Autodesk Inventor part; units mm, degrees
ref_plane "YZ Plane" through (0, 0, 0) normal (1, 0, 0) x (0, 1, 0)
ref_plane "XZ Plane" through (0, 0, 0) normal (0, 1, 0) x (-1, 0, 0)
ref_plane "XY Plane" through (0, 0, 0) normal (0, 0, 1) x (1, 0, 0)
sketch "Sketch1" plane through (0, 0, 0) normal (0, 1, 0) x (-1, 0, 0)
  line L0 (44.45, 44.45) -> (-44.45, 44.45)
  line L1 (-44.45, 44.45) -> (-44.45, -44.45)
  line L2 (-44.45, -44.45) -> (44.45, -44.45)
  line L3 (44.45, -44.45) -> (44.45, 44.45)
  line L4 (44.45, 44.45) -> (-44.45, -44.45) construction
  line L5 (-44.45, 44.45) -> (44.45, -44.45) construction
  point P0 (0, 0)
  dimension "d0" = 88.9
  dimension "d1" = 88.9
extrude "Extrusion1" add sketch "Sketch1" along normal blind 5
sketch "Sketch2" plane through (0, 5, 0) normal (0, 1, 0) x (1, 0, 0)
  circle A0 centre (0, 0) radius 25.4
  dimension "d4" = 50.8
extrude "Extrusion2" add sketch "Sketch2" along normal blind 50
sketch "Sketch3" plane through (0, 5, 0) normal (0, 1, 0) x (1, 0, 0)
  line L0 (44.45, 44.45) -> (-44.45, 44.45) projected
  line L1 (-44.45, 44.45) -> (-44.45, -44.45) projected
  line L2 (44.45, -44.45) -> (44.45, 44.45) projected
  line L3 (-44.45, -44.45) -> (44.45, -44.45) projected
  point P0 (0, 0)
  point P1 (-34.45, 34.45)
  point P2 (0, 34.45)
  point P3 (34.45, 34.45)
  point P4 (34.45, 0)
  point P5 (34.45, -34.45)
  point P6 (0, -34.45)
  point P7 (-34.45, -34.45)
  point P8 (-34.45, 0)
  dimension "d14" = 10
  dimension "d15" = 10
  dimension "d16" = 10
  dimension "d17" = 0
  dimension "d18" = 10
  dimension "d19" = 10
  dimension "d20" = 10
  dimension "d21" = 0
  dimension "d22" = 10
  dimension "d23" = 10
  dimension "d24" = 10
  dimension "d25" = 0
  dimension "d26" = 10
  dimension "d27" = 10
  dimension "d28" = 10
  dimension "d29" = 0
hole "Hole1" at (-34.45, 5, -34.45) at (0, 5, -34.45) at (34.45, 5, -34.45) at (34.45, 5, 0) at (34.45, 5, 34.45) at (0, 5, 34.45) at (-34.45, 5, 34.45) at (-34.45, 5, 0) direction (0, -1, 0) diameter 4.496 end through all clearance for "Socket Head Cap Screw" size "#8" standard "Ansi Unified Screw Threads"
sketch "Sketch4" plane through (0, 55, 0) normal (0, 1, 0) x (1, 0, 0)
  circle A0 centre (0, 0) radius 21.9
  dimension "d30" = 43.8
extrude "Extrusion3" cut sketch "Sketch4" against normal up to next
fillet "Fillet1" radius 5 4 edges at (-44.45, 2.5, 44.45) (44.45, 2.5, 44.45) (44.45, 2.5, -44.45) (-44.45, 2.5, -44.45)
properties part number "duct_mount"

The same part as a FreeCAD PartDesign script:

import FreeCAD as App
import Part
import Sketcher
from FreeCAD import Vector
Q = App.Units.Quantity


def edges_at(feature, points):
    """Names of the edges that pass closest to the given points."""
    edges = feature.Shape.Edges
    near = lambda p: min(range(len(edges)), key=lambda i: edges[i].distToShape(Part.Vertex(*p))[0])
    return sorted({f"Edge{near(p) + 1}" for p in points})

doc = App.newDocument("Part")
body = doc.addObject("PartDesign::Body", "Body")

# Sketch on XZ plane
sketch1 = doc.addObject("Sketcher::SketchObject", "Sketch")
body.addObject(sketch1)
sketch1.AttachmentSupport = (doc.XZ_Plane, [""])
sketch1.MapMode = "FlatFace"
sketch1.addGeometry(Part.LineSegment(Vector(-44, -44, 0), Vector(-44, 44, 0)), False)
sketch1.addGeometry(Part.LineSegment(Vector(-44, 44, 0), Vector(44, 44, 0)), False)
sketch1.addGeometry(Part.LineSegment(Vector(44, 44, 0), Vector(44, -44, 0)), False)
sketch1.addGeometry(Part.LineSegment(Vector(44, -44, 0), Vector(-44, -44, 0)), False)
sketch1.addConstraint(Sketcher.Constraint("Coincident", 0, 2, 1, 1))
sketch1.addConstraint(Sketcher.Constraint("Coincident", 1, 2, 2, 1))
sketch1.addConstraint(Sketcher.Constraint("Coincident", 2, 2, 3, 1))
sketch1.addConstraint(Sketcher.Constraint("Coincident", 3, 2, 0, 1))
sketch1.addConstraint(Sketcher.Constraint("Vertical", 0))
sketch1.addConstraint(Sketcher.Constraint("Horizontal", 1))
sketch1.addConstraint(Sketcher.Constraint("Vertical", 2))
sketch1.addConstraint(Sketcher.Constraint("Horizontal", 3))
sketch1.addConstraint(Sketcher.Constraint("Symmetric", 0, 2, 2, 2, -1, 1))
sketch1.addConstraint(Sketcher.Constraint("Equal", 3, 0))
sketch1.addConstraint(Sketcher.Constraint("DistanceX", 1, 1, 1, 2, Q("3.5 in")))
pad1 = doc.addObject("PartDesign::Pad", "Pad")
body.addObject(pad1)
pad1.Profile = sketch1
pad1.Length = 5
pad1.Reversed = True

# Sketch on XZ plane
sketch2 = doc.addObject("Sketcher::SketchObject", "Sketch001")
body.addObject(sketch2)
sketch2.AttachmentSupport = (doc.XZ_Plane, [""])
sketch2.MapMode = "FlatFace"
sketch2.AttachmentOffset = App.Placement(Vector(0, 0, -5), App.Rotation())
sketch2.addGeometry(Part.Circle(Vector(0, 0, 0), Vector(0, 0, 1), 25), False)
sketch2.addConstraint(Sketcher.Constraint("Coincident", 0, 3, -1, 1))
sketch2.addConstraint(Sketcher.Constraint("Diameter", 0, Q("2 in")))
pad2 = doc.addObject("PartDesign::Pad", "Pad001")
body.addObject(pad2)
pad2.Profile = sketch2
pad2.Length = Q("1.9685039 in")
pad2.Reversed = True

# Sketch on XZ plane
sketch3 = doc.addObject("Sketcher::SketchObject", "Sketch002")
body.addObject(sketch3)
sketch3.AttachmentSupport = (doc.XZ_Plane, [""])
sketch3.MapMode = "FlatFace"
sketch3.AttachmentOffset = App.Placement(Vector(0, 0, -5), App.Rotation())
sketch3.addGeometry(Part.Circle(Vector(-34.5, -34.5, 0), Vector(0, 0, 1), 2.2), False)
sketch3.addGeometry(Part.Circle(Vector(0, -34.5, 0), Vector(0, 0, 1), 2.2), False)
sketch3.addGeometry(Part.Circle(Vector(34.5, -34.5, 0), Vector(0, 0, 1), 2.2), False)
sketch3.addGeometry(Part.Circle(Vector(34.5, 0, 0), Vector(0, 0, 1), 2.2), False)
sketch3.addGeometry(Part.Circle(Vector(34.5, 34.5, 0), Vector(0, 0, 1), 2.2), False)
sketch3.addGeometry(Part.Circle(Vector(0, 34.5, 0), Vector(0, 0, 1), 2.2), False)
sketch3.addGeometry(Part.Circle(Vector(-34.5, 34.5, 0), Vector(0, 0, 1), 2.2), False)
sketch3.addGeometry(Part.Circle(Vector(-34.5, 0, 0), Vector(0, 0, 1), 2.2), False)
sketch3.addConstraint(Sketcher.Constraint("Equal", 0, 1))
sketch3.addConstraint(Sketcher.Constraint("Equal", 1, 2))
sketch3.addConstraint(Sketcher.Constraint("Equal", 2, 3))
sketch3.addConstraint(Sketcher.Constraint("Equal", 3, 4))
sketch3.addConstraint(Sketcher.Constraint("Equal", 4, 5))
sketch3.addConstraint(Sketcher.Constraint("Equal", 5, 6))
sketch3.addConstraint(Sketcher.Constraint("Equal", 6, 7))
sketch3.addConstraint(Sketcher.Constraint("Symmetric", 0, 3, 4, 3, -1, 1))
sketch3.addConstraint(Sketcher.Constraint("Symmetric", 1, 3, 5, 3, -1, 1))
sketch3.addConstraint(Sketcher.Constraint("Symmetric", 2, 3, 6, 3, -1, 1))
sketch3.addConstraint(Sketcher.Constraint("Symmetric", 3, 3, 7, 3, -1, 1))
sketch3.addConstraint(Sketcher.Constraint("Symmetric", 0, 3, 2, 3, -2))
sketch3.addConstraint(Sketcher.Constraint("PointOnObject", 1, 3, -2))
sketch3.addConstraint(Sketcher.Constraint("PointOnObject", 3, 3, -1))
sketch3.addConstraint(Sketcher.Constraint("Horizontal", 0, 3, 1, 3))
sketch3.addConstraint(Sketcher.Constraint("Vertical", 2, 3, 3, 3))
sketch3.addConstraint(Sketcher.Constraint("Diameter", 0, Q("0.177 in")))
sketch3.addConstraint(Sketcher.Constraint("DistanceX", 0, 3, -1, 1, Q("1.3563 in")))
sketch3.addConstraint(Sketcher.Constraint("DistanceY", 0, 3, -1, 1, Q("1.3563 in")))
doc.recompute()
hole = doc.addObject("PartDesign::Hole", "Hole")
body.addObject(hole)
hole.Profile = sketch3
hole.ThreadType = "None"
hole.Diameter = Q("0.1770079 in")
hole.DepthType = "ThroughAll"
hole.Reversed = True

# Sketch on XZ plane
sketch4 = doc.addObject("Sketcher::SketchObject", "Sketch003")
body.addObject(sketch4)
sketch4.AttachmentSupport = (doc.XZ_Plane, [""])
sketch4.MapMode = "FlatFace"
sketch4.AttachmentOffset = App.Placement(Vector(0, 0, -55), App.Rotation())
sketch4.addGeometry(Part.Circle(Vector(0, 0, 0), Vector(0, 0, 1), 22), False)
sketch4.addConstraint(Sketcher.Constraint("Coincident", 0, 3, -1, 1))
sketch4.addConstraint(Sketcher.Constraint("Diameter", 0, Q("1.7244 in")))
pocket1 = doc.addObject("PartDesign::Pocket", "Pocket")
body.addObject(pocket1)
pocket1.Profile = sketch4
pocket1.Type = "UpToFirst"
pocket1.Reversed = True
doc.recompute()

fillet = doc.addObject("PartDesign::Fillet", "Fillet")
body.addObject(fillet)
fillet.Base = (pocket1, edges_at(pocket1, [
    (-44.45, 2.5, 44.45),
    (44.45, 2.5, 44.45),
    (44.45, 2.5, -44.45),
    (-44.45, 2.5, -44.45),
]))
fillet.Radius = 5

doc.recompute()
